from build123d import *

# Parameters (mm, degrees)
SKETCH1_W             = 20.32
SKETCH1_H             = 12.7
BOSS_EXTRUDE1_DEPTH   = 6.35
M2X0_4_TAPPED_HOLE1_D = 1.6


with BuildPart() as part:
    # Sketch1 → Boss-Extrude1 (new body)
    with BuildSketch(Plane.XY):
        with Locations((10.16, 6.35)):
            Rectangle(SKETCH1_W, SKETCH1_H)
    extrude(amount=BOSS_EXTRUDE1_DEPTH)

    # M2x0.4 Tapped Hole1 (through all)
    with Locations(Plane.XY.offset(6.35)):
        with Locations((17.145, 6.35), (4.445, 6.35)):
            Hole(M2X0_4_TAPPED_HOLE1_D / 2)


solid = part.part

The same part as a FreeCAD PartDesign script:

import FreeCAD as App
import Part
import Sketcher

V = App.Vector
Q = App.Units.Quantity

doc = App.newDocument("Part")
params = doc.addObject("Spreadsheet::Sheet", "Params")
for row, (alias, value) in enumerate([
    ("sketch1_width", "0.8 in"),
    ("sketch1_height", "0.5 in"),
    ("pad1_length", "0.25 in"),
    ("hole_diameter", "1.6 mm"),
], start=1):
    params.set(f"A{row}", alias)
    params.set(f"B{row}", "=" + value)
    params.setAlias(f"B{row}", alias)

body = doc.addObject("PartDesign::Body", "Body")

# Sketch on XY plane
sketch1 = doc.addObject("Sketcher::SketchObject", "Sketch")
body.addObject(sketch1)
sketch1.AttachmentSupport = (doc.XY_Plane, [""])
sketch1.MapMode = "FlatFace"
sketch1.addGeometry(Part.LineSegment(V(0, 13, 0), V(0, 0, 0)), False)
sketch1.addGeometry(Part.LineSegment(V(0, 0, 0), V(20, 0, 0)), False)
sketch1.addGeometry(Part.LineSegment(V(20, 0, 0), V(20, 13, 0)), False)
sketch1.addGeometry(Part.LineSegment(V(20, 13, 0), V(0, 13, 0)), False)
sketch1.addConstraint(Sketcher.Constraint("Coincident", 0, 2, 1, 1))
sketch1.addConstraint(Sketcher.Constraint("Coincident", 1, 2, 2, 1))
sketch1.addConstraint(Sketcher.Constraint("Coincident", 2, 2, 3, 1))
sketch1.addConstraint(Sketcher.Constraint("Coincident", 3, 2, 0, 1))
sketch1.addConstraint(Sketcher.Constraint("Vertical", 0))
sketch1.addConstraint(Sketcher.Constraint("Horizontal", 1))
sketch1.addConstraint(Sketcher.Constraint("Vertical", 2))
sketch1.addConstraint(Sketcher.Constraint("Horizontal", 3))
sketch1.addConstraint(Sketcher.Constraint("Coincident", 0, 2, -1, 1))
sketch1.addConstraint(Sketcher.Constraint("DistanceX", 1, 1, 1, 2, Q("0.8 in")))
sketch1.addConstraint(Sketcher.Constraint("DistanceY", 0, 2, 0, 1, Q("0.5 in")))
sketch1.setExpression("Constraints[9]", "Params.sketch1_width")
sketch1.setExpression("Constraints[10]", "Params.sketch1_height")
pad1 = doc.addObject("PartDesign::Pad", "Pad")
body.addObject(pad1)
pad1.Profile = sketch1
pad1.setExpression("Length", "Params.pad1_length")

# Sketch on XY plane
sketch2 = doc.addObject("Sketcher::SketchObject", "Sketch001")
body.addObject(sketch2)
sketch2.AttachmentSupport = (doc.XY_Plane, [""])
sketch2.MapMode = "FlatFace"
sketch2.AttachmentOffset = App.Placement(V(0, 0, 0.25 * 25.4), App.Rotation())
sketch2.addGeometry(Part.Circle(V(17.1, 6.3, 0), V(0, 0, 1), 0.8), False)
sketch2.addGeometry(Part.Circle(V(4.4, 6.3, 0), V(0, 0, 1), 0.8), False)
sketch2.addConstraint(Sketcher.Constraint("Equal", 0, 1))
sketch2.addConstraint(Sketcher.Constraint("Horizontal", 0, 3, 1, 3))
sketch2.addConstraint(Sketcher.Constraint("DistanceX", 1, 3, 0, 3, Q("0.5 in")))
sketch2.addConstraint(Sketcher.Constraint("Diameter", 0, 1.6))
sketch2.addConstraint(Sketcher.Constraint("DistanceY", -1, 1, 0, 3, Q("0.25 in")))
sketch2.addConstraint(Sketcher.Constraint("DistanceX", -1, 1, 0, 3, Q("0.675 in")))
doc.recompute()
hole = doc.addObject("PartDesign::Hole", "Hole")
body.addObject(hole)
hole.Profile = sketch2
hole.ThreadType = "None"
hole.setExpression("Diameter", "Params.hole_diameter")
hole.DepthType = "ThroughAll"

doc.recompute()
